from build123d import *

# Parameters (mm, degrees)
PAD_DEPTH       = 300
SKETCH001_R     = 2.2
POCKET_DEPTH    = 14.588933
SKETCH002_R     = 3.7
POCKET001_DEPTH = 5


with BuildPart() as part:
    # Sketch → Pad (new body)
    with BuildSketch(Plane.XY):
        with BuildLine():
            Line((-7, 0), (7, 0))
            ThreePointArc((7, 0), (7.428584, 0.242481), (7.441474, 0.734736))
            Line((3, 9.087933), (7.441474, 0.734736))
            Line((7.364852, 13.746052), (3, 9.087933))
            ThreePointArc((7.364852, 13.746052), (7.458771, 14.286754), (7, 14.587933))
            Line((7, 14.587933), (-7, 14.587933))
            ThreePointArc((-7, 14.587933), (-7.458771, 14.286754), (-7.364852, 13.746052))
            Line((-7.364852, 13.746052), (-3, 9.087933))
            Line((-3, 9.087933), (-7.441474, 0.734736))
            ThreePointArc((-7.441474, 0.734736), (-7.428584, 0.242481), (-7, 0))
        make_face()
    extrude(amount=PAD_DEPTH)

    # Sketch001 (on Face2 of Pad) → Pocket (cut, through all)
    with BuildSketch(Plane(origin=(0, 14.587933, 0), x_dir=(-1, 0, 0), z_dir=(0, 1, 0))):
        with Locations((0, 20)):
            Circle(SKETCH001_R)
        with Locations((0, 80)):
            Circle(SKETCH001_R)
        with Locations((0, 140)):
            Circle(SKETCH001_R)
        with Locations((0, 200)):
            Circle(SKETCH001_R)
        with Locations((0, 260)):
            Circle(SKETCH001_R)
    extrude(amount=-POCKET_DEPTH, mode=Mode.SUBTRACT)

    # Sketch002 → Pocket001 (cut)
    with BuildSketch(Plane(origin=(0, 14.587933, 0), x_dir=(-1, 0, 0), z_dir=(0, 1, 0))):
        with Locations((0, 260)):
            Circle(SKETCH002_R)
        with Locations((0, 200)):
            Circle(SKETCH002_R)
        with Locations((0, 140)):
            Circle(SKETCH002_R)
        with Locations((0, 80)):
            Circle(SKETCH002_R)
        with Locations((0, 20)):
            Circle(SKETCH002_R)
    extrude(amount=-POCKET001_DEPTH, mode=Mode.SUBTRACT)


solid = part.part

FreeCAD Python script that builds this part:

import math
import FreeCAD as App
import Part
import Sketcher
from FreeCAD import Vector
Q = App.Units.Quantity

doc = App.newDocument("Part")
body = doc.addObject("PartDesign::Body", "Body")

# Sketch on XY plane
sketch1 = doc.addObject("Sketcher::SketchObject", "Sketch")
body.addObject(sketch1)
sketch1.AttachmentSupport = (doc.XY_Plane, [""])
sketch1.MapMode = "FlatFace"
sketch1.addGeometry([
    Part.LineSegment(Vector(-7, 0, 0), Vector(7, 0, 0)),  # 0
    Part.ArcOfCircle(Part.Circle(Vector(7, 0.5, 0), Vector(0, 0, 1), 0.5), math.radians(-90), math.radians(28)),  # 1
    Part.LineSegment(Vector(7.44, 0.73, 0), Vector(3, 9.09, 0)),  # 2
    Part.LineSegment(Vector(3, 9.09, 0), Vector(7.36, 13.75, 0)),  # 3
    Part.ArcOfCircle(Part.Circle(Vector(7, 14.09, 0), Vector(0, 0, 1), 0.5), math.radians(-43), math.radians(90)),  # 4
    Part.LineSegment(Vector(7, 14.59, 0), Vector(-7, 14.59, 0)),  # 5
    Part.ArcOfCircle(Part.Circle(Vector(-7, 14.09, 0), Vector(0, 0, 1), 0.5), math.radians(90), math.radians(223)),  # 6
    Part.LineSegment(Vector(-7.36, 13.75, 0), Vector(-3, 9.09, 0)),  # 7
    Part.LineSegment(Vector(-3, 9.09, 0), Vector(-7.44, 0.73, 0)),  # 8
    Part.ArcOfCircle(Part.Circle(Vector(-7, 0.5, 0), Vector(0, 0, 1), 0.5), math.radians(152), math.radians(270)),  # 9
], False)
sketch1.addConstraint([
    Sketcher.Constraint("Tangent", 0, 2, 1, 1),
    Sketcher.Constraint("Tangent", 1, 2, 2, 1),
    Sketcher.Constraint("Coincident", 2, 2, 3, 1),
    Sketcher.Constraint("Tangent", 3, 2, 4, 1),
    Sketcher.Constraint("Coincident", 4, 2, 5, 1),
    Sketcher.Constraint("Coincident", 5, 2, 6, 1),
    Sketcher.Constraint("Tangent", 6, 2, 7, 1),
    Sketcher.Constraint("Coincident", 7, 2, 8, 1),
    Sketcher.Constraint("Tangent", 8, 2, 9, 1),
    Sketcher.Constraint("Tangent", 9, 2, 0, 1),
    Sketcher.Constraint("Horizontal", 0),
    Sketcher.Constraint("Horizontal", 5),
    Sketcher.Constraint("Equal", 1, 4),
    Sketcher.Constraint("Equal", 4, 6),
    Sketcher.Constraint("Equal", 6, 9),
    Sketcher.Constraint("Symmetric", 0, 2, 9, 2, -1, 1),
    Sketcher.Constraint("Symmetric", 3, 2, 6, 2, -2),
    Sketcher.Constraint("Horizontal", 2, 2, 7, 2),
    Sketcher.Constraint("Vertical", 1, 3, 4, 3),
    Sketcher.Constraint("Vertical", 0, 2, 4, 2),
    Sketcher.Constraint("Vertical", 9, 3, 5, 2),
    Sketcher.Constraint("Radius", 1, Q("0.5 mm")),
    Sketcher.Constraint("DistanceX", 0, 1, 0, 2, Q("14 mm")),
    Sketcher.Constraint("Angle", 2, Q("118.000002 deg")),
    Sketcher.Constraint("DistanceX", -1, 1, 2, 2, Q("3 mm")),
    Sketcher.Constraint("DistanceY", 2, 2, 4, 3, Q("5.000001 mm")),
])
pad1 = doc.addObject("PartDesign::Pad", "Pad")
body.addObject(pad1)
pad1.Profile = sketch1
pad1.Length = 300

# Sketch on XZ plane
sketch2 = doc.addObject("Sketcher::SketchObject", "Sketch001")
body.addObject(sketch2)
sketch2.AttachmentSupport = (doc.XZ_Plane, [""])
sketch2.MapMode = "FlatFace"
sketch2.AttachmentOffset = App.Placement(Vector(0, 0, -14.587933), App.Rotation())
sketch2.addGeometry([
    Part.Circle(Vector(0, 20, 0), Vector(0, 0, 1), 2.2),  # 0
    Part.Circle(Vector(0, 80, 0), Vector(0, 0, 1), 2.2),  # 1
    Part.Circle(Vector(0, 140, 0), Vector(0, 0, 1), 2.2),  # 2
    Part.Circle(Vector(0, 200, 0), Vector(0, 0, 1), 2.2),  # 3
    Part.Circle(Vector(0, 260, 0), Vector(0, 0, 1), 2.2),  # 4
], False)
sketch2.addConstraint([
    Sketcher.Constraint("Equal", 0, 1),
    Sketcher.Constraint("Equal", 1, 2),
    Sketcher.Constraint("Equal", 2, 3),
    Sketcher.Constraint("Equal", 3, 4),
    Sketcher.Constraint("PointOnObject", 0, 3, -2),
    Sketcher.Constraint("PointOnObject", 1, 3, -2),
    Sketcher.Constraint("PointOnObject", 2, 3, -2),
    Sketcher.Constraint("PointOnObject", 3, 3, -2),
    Sketcher.Constraint("PointOnObject", 4, 3, -2),
    Sketcher.Constraint("Diameter", 0, Q("4.4 mm")),
    Sketcher.Constraint("DistanceY", -1, 1, 0, 3, Q("20 mm")),
    Sketcher.Constraint("DistanceY", -1, 1, 1, 3, Q("80 mm")),
    Sketcher.Constraint("DistanceY", -1, 1, 2, 3, Q("140 mm")),
    Sketcher.Constraint("DistanceY", -1, 1, 3, 3, Q("200 mm")),
    Sketcher.Constraint("DistanceY", -1, 1, 4, 3, Q("260 mm")),
])
pocket1 = doc.addObject("PartDesign::Pocket", "Pocket")
body.addObject(pocket1)
pocket1.Profile = sketch2
pocket1.Type = "ThroughAll"
pocket1.Reversed = True

# Sketch on XZ plane
sketch3 = doc.addObject("Sketcher::SketchObject", "Sketch002")
body.addObject(sketch3)
sketch3.AttachmentSupport = (doc.XZ_Plane, [""])
sketch3.MapMode = "FlatFace"
sketch3.AttachmentOffset = App.Placement(Vector(0, 0, -14.587933), App.Rotation())
sketch3.addGeometry([
    Part.Circle(Vector(0, 260, 0), Vector(0, 0, 1), 3.7),  # 0
    Part.Circle(Vector(0, 200, 0), Vector(0, 0, 1), 3.7),  # 1
    Part.Circle(Vector(0, 140, 0), Vector(0, 0, 1), 3.7),  # 2
    Part.Circle(Vector(0, 80, 0), Vector(0, 0, 1), 3.7),  # 3
    Part.Circle(Vector(0, 20, 0), Vector(0, 0, 1), 3.7),  # 4
], False)
sketch3.addConstraint([
    Sketcher.Constraint("Equal", 0, 1),
    Sketcher.Constraint("Equal", 1, 2),
    Sketcher.Constraint("Equal", 2, 3),
    Sketcher.Constraint("Equal", 3, 4),
    Sketcher.Constraint("PointOnObject", 0, 3, -2),
    Sketcher.Constraint("PointOnObject", 1, 3, -2),
    Sketcher.Constraint("PointOnObject", 2, 3, -2),
    Sketcher.Constraint("PointOnObject", 3, 3, -2),
    Sketcher.Constraint("PointOnObject", 4, 3, -2),
    Sketcher.Constraint("Diameter", 0, Q("7.4 mm")),
    Sketcher.Constraint("DistanceY", -1, 1, 0, 3, Q("260 mm")),
    Sketcher.Constraint("DistanceY", -1, 1, 1, 3, Q("200 mm")),
    Sketcher.Constraint("DistanceY", -1, 1, 2, 3, Q("140 mm")),
    Sketcher.Constraint("DistanceY", -1, 1, 3, 3, Q("80 mm")),
    Sketcher.Constraint("DistanceY", -1, 1, 4, 3, Q("20 mm")),
])
pocket2 = doc.addObject("PartDesign::Pocket", "Pocket001")
body.addObject(pocket2)
pocket2.Profile = sketch3
pocket2.Length = 5
pocket2.Reversed = True

doc.recompute()
